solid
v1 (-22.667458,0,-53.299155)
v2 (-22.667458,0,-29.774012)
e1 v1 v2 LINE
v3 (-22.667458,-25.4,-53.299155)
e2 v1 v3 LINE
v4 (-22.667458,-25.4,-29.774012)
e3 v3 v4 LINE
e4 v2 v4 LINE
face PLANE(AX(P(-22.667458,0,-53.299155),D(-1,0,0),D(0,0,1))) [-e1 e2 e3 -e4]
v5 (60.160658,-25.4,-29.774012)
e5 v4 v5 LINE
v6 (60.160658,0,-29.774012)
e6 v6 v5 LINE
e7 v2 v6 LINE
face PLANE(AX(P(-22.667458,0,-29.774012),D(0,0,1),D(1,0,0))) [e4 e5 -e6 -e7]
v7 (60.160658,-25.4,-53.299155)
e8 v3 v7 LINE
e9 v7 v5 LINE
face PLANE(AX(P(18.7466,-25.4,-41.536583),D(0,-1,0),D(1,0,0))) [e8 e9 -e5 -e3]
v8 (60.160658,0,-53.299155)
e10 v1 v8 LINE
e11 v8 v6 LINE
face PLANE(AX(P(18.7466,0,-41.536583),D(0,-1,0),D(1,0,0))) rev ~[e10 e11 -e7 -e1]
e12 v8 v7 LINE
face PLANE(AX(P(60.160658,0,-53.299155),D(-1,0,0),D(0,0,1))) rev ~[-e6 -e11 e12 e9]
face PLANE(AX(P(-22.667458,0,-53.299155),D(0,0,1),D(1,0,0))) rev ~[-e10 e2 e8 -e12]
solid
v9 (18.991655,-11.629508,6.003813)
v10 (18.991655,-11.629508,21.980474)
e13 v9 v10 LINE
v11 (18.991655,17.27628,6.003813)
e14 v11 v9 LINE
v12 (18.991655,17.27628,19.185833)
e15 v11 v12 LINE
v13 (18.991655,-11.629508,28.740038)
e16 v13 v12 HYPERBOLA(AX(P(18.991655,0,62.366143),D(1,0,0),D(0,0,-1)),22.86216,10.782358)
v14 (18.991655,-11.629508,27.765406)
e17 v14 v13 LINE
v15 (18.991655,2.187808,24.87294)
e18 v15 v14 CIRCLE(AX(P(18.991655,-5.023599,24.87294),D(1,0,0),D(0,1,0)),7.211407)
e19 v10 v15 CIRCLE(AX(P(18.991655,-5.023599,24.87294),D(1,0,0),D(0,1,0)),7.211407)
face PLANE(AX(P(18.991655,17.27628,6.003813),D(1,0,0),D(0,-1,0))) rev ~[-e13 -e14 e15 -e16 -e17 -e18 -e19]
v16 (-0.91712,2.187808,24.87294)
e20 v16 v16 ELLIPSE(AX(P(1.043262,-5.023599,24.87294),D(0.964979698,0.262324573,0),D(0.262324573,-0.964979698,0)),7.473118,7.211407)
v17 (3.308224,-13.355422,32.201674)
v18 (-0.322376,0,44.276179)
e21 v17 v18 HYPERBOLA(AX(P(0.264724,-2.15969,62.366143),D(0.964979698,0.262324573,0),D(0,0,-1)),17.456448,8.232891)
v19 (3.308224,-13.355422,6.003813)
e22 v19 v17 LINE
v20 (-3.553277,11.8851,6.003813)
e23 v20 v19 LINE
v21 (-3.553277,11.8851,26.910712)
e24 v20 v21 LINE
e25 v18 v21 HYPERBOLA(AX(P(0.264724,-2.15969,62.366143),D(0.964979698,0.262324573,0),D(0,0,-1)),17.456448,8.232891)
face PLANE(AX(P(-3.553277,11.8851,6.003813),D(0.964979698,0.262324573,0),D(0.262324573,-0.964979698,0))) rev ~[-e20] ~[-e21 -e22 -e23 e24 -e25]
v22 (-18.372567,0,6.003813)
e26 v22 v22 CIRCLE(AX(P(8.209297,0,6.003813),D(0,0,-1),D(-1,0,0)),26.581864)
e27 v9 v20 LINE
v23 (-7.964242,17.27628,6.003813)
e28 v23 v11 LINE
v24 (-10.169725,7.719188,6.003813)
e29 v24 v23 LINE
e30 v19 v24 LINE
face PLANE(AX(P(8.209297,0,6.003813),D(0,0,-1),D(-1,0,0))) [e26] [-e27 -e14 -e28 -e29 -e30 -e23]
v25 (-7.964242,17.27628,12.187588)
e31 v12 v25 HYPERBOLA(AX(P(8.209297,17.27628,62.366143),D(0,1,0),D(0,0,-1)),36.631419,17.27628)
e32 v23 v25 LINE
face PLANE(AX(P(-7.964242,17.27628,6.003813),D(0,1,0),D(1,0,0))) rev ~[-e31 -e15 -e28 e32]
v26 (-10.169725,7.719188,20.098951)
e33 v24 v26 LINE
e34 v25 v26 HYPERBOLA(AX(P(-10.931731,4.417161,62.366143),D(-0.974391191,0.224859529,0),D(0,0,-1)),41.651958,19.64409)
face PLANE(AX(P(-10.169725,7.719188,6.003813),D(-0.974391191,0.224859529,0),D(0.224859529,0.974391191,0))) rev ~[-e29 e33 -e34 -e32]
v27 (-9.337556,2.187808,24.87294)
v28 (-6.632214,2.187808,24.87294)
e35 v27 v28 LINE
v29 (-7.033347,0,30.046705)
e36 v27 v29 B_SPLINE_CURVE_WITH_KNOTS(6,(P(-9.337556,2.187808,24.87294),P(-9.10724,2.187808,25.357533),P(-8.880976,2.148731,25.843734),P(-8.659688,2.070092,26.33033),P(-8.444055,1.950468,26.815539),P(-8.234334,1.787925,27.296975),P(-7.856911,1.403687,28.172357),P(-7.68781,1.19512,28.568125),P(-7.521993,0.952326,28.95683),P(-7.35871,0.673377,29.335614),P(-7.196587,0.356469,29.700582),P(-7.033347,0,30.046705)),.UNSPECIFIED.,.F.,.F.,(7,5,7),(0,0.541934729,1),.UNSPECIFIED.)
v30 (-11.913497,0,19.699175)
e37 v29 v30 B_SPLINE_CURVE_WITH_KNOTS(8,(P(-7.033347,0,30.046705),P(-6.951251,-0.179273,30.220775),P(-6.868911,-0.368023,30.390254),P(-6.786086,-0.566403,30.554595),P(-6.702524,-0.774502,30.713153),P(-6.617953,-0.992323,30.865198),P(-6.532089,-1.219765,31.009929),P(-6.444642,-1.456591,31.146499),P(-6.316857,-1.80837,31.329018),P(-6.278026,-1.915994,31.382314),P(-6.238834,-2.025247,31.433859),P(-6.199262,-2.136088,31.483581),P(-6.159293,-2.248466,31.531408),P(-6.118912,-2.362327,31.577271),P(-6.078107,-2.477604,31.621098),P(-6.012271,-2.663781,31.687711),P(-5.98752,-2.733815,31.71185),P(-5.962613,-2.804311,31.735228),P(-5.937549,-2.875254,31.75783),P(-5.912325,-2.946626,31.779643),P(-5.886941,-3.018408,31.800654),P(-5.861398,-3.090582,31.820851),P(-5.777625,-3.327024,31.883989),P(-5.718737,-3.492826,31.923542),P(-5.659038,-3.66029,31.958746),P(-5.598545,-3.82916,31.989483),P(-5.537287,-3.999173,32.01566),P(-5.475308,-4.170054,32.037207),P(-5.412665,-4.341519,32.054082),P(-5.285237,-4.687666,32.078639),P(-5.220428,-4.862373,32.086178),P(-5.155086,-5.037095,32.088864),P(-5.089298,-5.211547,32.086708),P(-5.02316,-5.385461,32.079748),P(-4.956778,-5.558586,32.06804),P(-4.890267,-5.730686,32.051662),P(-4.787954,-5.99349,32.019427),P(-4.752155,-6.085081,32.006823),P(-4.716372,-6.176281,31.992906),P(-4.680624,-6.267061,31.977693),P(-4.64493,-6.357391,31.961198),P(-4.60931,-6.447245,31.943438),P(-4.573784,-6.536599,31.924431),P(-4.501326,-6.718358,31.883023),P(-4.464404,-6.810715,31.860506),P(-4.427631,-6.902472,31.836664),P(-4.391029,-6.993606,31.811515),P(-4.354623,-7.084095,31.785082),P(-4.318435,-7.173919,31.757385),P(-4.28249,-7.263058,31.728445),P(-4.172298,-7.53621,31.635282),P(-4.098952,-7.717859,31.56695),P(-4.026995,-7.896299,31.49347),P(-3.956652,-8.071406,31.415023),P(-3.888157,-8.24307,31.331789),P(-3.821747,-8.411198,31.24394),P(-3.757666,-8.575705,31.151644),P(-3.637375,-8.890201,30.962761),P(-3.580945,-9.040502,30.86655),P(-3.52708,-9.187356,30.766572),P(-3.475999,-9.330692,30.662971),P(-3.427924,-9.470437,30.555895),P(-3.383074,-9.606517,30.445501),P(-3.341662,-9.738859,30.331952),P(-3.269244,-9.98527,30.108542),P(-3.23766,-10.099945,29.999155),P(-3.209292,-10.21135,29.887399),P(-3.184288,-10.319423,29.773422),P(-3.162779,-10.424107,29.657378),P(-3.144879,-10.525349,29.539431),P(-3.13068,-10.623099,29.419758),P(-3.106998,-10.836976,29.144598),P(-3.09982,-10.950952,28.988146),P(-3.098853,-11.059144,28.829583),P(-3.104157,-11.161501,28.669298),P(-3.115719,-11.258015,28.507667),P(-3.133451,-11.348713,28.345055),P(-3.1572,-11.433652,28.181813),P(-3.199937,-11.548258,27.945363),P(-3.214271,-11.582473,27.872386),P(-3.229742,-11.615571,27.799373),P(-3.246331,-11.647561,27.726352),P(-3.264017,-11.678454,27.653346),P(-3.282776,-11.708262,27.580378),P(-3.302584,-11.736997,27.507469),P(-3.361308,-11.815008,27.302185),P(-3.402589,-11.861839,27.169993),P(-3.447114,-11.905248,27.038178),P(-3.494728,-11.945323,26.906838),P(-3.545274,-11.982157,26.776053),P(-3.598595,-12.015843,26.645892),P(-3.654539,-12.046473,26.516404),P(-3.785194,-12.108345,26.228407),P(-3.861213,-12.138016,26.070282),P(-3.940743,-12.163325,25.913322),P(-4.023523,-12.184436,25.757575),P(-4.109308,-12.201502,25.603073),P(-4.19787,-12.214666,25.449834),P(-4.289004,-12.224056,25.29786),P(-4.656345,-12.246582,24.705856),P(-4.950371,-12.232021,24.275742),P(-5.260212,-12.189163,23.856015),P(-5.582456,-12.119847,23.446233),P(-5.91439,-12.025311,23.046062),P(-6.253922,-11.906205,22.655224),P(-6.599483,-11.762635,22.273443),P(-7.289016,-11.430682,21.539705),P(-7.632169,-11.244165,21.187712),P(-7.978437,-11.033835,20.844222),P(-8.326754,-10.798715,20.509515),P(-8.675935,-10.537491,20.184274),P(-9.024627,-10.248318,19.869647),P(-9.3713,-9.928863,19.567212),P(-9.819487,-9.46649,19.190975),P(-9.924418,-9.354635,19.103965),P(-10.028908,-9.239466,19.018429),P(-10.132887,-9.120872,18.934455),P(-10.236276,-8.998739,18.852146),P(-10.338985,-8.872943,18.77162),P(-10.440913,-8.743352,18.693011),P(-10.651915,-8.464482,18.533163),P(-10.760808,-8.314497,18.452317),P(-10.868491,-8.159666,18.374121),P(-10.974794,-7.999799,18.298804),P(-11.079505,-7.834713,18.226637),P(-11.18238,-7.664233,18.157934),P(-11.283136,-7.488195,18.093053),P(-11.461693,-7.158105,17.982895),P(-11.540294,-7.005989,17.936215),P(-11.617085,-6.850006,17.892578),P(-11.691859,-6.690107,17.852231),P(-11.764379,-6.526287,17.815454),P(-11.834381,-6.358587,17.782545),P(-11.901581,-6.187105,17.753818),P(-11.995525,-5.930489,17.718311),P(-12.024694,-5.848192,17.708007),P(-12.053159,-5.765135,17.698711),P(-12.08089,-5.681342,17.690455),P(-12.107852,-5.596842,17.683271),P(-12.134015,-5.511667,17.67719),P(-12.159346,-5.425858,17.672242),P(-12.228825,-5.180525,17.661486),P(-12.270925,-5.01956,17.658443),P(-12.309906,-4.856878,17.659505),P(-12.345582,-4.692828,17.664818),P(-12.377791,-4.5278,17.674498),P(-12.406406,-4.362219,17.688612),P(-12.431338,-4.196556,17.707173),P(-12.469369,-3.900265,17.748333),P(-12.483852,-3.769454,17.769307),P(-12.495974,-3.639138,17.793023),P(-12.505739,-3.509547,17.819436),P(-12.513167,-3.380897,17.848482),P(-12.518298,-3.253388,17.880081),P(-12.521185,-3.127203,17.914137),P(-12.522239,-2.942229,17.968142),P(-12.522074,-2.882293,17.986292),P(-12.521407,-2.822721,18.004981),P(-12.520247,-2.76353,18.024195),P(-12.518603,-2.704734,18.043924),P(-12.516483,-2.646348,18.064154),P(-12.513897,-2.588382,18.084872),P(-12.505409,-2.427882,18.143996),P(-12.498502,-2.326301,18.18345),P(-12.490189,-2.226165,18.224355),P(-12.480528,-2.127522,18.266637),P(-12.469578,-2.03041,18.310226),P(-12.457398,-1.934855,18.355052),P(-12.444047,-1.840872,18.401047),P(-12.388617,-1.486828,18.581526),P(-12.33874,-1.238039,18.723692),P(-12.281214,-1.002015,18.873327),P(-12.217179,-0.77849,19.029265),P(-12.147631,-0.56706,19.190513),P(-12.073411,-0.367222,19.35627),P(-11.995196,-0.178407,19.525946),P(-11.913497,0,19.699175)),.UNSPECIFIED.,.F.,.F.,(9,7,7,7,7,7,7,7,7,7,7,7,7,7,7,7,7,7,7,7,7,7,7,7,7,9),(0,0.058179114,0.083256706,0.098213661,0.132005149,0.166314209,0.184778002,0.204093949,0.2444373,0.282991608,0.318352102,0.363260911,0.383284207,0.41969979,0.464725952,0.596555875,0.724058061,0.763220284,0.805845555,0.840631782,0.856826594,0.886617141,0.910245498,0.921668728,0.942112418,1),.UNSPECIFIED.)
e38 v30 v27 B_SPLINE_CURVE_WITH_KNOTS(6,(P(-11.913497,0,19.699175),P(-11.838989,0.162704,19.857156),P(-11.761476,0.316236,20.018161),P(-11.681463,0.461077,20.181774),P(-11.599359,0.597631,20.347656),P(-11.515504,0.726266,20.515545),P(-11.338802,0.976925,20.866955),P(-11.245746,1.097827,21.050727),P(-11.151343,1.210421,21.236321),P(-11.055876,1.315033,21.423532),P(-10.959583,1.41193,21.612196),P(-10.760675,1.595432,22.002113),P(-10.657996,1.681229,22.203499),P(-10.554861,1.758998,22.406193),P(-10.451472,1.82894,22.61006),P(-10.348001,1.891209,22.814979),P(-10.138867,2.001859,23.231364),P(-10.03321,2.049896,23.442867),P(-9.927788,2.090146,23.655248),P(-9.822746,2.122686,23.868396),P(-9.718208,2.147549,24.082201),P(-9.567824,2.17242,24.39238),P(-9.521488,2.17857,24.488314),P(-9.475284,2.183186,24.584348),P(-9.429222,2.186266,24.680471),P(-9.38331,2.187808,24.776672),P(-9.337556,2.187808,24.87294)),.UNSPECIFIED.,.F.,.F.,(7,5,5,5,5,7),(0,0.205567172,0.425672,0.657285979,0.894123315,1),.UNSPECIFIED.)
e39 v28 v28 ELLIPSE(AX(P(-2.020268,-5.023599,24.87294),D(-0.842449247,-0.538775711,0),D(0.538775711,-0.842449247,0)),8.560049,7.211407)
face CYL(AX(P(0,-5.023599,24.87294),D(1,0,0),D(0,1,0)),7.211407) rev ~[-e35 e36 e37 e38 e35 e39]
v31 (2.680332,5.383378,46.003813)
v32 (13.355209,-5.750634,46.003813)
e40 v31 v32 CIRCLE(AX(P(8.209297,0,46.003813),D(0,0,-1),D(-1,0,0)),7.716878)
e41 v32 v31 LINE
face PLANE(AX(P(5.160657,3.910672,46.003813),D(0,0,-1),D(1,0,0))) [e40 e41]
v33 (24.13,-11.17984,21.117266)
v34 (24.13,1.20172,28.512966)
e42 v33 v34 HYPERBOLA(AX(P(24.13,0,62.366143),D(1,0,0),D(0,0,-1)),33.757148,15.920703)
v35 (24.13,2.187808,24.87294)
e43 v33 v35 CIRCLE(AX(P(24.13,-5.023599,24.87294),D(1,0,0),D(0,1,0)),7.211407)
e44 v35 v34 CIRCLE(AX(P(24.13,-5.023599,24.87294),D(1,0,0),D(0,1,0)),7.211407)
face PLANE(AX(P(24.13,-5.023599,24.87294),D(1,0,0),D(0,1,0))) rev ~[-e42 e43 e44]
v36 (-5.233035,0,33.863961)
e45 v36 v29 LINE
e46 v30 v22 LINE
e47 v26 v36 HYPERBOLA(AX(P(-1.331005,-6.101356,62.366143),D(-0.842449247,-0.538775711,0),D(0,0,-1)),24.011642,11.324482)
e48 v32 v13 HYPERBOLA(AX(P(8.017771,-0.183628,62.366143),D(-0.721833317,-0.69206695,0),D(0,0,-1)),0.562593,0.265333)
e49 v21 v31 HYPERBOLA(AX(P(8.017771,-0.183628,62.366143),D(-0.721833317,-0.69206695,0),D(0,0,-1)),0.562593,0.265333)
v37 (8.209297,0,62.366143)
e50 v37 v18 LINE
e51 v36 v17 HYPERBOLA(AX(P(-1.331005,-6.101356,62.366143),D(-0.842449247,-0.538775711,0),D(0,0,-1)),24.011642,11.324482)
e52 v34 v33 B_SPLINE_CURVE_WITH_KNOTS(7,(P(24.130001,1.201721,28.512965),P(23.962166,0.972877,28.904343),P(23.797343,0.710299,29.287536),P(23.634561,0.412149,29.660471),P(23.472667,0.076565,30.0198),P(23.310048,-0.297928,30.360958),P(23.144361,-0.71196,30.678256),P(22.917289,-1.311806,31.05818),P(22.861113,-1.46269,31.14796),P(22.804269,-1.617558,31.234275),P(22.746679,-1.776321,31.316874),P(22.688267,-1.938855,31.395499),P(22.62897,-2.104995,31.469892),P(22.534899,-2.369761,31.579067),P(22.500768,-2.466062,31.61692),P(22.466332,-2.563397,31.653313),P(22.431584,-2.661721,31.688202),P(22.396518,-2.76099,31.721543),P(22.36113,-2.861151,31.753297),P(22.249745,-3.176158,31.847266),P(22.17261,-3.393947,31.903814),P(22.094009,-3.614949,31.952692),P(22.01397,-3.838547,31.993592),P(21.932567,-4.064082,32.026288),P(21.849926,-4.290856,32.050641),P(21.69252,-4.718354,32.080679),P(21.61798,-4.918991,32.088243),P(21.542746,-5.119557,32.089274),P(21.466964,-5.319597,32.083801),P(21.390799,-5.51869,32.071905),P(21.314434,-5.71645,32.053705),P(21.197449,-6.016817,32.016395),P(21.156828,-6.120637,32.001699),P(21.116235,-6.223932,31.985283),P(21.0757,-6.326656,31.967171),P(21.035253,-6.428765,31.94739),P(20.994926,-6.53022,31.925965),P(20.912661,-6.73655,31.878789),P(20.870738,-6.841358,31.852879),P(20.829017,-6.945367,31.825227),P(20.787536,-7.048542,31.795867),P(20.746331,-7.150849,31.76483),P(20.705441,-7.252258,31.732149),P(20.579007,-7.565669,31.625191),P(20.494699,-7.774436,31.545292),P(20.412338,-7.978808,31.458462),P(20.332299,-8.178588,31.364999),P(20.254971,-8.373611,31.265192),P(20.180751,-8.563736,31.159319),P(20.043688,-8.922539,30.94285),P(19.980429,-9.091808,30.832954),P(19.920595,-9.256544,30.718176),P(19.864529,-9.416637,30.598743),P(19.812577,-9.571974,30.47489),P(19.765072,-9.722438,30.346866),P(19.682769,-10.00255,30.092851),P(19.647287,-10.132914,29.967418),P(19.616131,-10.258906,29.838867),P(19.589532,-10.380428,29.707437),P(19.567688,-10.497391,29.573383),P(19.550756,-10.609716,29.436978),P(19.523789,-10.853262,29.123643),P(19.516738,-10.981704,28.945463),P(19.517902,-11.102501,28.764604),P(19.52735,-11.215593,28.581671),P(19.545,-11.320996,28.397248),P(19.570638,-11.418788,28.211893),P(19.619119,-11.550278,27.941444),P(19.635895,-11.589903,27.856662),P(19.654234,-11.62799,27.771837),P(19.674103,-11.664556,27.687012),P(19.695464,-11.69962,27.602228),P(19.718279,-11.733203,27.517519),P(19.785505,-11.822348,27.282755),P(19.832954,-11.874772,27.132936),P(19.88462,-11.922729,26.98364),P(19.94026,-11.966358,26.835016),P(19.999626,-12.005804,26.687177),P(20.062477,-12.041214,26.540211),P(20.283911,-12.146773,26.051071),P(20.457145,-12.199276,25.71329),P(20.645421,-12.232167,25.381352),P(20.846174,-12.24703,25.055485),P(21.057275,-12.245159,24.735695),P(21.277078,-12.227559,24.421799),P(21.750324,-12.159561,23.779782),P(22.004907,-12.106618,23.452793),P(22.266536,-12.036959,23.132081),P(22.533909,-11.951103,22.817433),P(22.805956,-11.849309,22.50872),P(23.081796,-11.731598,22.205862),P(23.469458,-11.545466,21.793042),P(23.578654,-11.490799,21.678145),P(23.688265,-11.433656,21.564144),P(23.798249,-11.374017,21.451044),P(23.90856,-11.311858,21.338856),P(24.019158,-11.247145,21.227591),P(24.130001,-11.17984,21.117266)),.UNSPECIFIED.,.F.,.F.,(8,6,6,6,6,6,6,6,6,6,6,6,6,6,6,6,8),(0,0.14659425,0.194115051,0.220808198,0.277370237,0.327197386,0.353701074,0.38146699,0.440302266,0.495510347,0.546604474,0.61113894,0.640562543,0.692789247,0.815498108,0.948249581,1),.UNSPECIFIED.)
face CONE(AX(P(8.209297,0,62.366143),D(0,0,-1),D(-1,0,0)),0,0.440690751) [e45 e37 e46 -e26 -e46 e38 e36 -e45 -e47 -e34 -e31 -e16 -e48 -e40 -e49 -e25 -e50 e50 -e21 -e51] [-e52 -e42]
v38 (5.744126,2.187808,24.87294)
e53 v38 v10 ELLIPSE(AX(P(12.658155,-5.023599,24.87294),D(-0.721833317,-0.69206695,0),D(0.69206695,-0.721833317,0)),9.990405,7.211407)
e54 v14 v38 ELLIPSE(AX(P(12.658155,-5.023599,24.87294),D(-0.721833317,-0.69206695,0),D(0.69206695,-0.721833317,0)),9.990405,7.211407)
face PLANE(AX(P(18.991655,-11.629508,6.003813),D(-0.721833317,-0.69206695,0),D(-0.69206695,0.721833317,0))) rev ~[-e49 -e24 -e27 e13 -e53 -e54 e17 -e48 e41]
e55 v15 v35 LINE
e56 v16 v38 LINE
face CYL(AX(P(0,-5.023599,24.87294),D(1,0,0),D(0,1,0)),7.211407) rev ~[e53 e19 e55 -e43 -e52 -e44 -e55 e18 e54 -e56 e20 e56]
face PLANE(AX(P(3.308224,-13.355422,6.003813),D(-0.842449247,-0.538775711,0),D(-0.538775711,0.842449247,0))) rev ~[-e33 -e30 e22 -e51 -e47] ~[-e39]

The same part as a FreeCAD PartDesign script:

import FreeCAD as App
import Part
import Sketcher


def add_polygon(sketch, points):
    """Adds a closed chain of lines whose ends are joined by coincident constraints."""
    first, n = sketch.GeometryCount, len(points)
    for a, b in zip(points, points[1:] + points[:1]):
        sketch.addGeometry(Part.LineSegment(App.Vector(*a, 0), App.Vector(*b, 0)), False)
    for i in range(n):
        sketch.addConstraint(Sketcher.Constraint("Coincident", first + i, 2, first + (i + 1) % n, 1))

doc = App.newDocument("Part")
params = doc.addObject("Spreadsheet::Sheet", "Params")
for row, (alias, value) in enumerate([
    ("revolution_angle", "360 deg"),
    ("pocket1_length", "1.9 in"),
    ("pocket2_length", "40 mm"),
    ("pad1_length", "1 in"),
], start=1):
    params.set(f"A{row}", alias)
    params.set(f"B{row}", "=" + value)
    params.setAlias(f"B{row}", alias)

body = doc.addObject("PartDesign::Body", "Body")

# Sketch on XZ plane
sketch1 = doc.addObject("Sketcher::SketchObject", "Sketch")
body.addObject(sketch1)
sketch1.AttachmentSupport = (doc.XZ_Plane, [""])
sketch1.MapMode = "FlatFace"
add_polygon(sketch1, [(8.209297, 6.003813), (8.209297, 62.366143), (-18.372567, 6.003813)])  # lines 0-2
sketch1.addGeometry(Part.LineSegment(App.Vector(8.209297, 62.366143, 0), App.Vector(8.209297, 6.003813, 0)), True)  # axis
sketch1.addConstraint(Sketcher.Constraint("Vertical", 0))
sketch1.addConstraint(Sketcher.Constraint("Horizontal", 2))
sketch1.addConstraint(Sketcher.Constraint("Vertical", 3))
sketch1.addConstraint(Sketcher.Constraint("Coincident", 3, 1, 0, 2))
sketch1.addConstraint(Sketcher.Constraint("Horizontal", 1, 2, 3, 2))
sketch1.addConstraint(Sketcher.Constraint("DistanceY", 0, 1, 0, 2, 56.36233))
sketch1.addConstraint(Sketcher.Constraint("Distance", 1, 62.316192))
sketch1.addConstraint(Sketcher.Constraint("DistanceX", -1, 1, 0, 2, 8.209297))
sketch1.addConstraint(Sketcher.Constraint("DistanceY", -1, 1, 0, 2, 62.366143))
revolution = doc.addObject("PartDesign::Revolution", "Revolution")
body.addObject(revolution)
revolution.Profile = sketch1
revolution.ReferenceAxis = (sketch1, ["Axis0"])
revolution.setExpression("Angle", "Params.revolution_angle")

# Sketch on YZ plane
sketch2 = doc.addObject("Sketcher::SketchObject", "Sketch001")
body.addObject(sketch2)
sketch2.AttachmentSupport = (doc.YZ_Plane, [""])
sketch2.MapMode = "FlatFace"
sketch2.addGeometry(Part.Circle(App.Vector(-5.023599, 24.87294, 0), App.Vector(0, 0, 1), 7.211407), False)
sketch2.addConstraint(Sketcher.Constraint("Diameter", 0, 14.422814))
sketch2.addConstraint(Sketcher.Constraint("DistanceX", 0, 3, -1, 1, 5.023599))
sketch2.addConstraint(Sketcher.Constraint("DistanceY", -1, 1, 0, 3, 24.87294))
pocket1 = doc.addObject("PartDesign::Pocket", "Pocket")
body.addObject(pocket1)
pocket1.Profile = sketch2
pocket1.setExpression("Length", "Params.pocket1_length")
pocket1.Midplane = True

# Sketch on XY plane
sketch3 = doc.addObject("Sketcher::SketchObject", "Sketch002")
body.addObject(sketch3)
sketch3.AttachmentSupport = (doc.XY_Plane, [""])
sketch3.MapMode = "FlatFace"
sketch3.AttachmentOffset = App.Placement(App.Vector(0, 0, 6.003813), App.Rotation())
add_polygon(sketch3, [(-7.964242, 17.27628), (18.991655, 17.27628), (18.991655, -11.629508), (-3.553277, 11.8851), (3.308224, -13.355422), (-10.169725, 7.719188)])  # lines 0-5
sketch3.addConstraint(Sketcher.Constraint("Horizontal", 0))
sketch3.addConstraint(Sketcher.Constraint("Vertical", 1))
sketch3.addConstraint(Sketcher.Constraint("DistanceY", 1, 2, 1, 1, 28.905788))
sketch3.addConstraint(Sketcher.Constraint("DistanceY", -1, 1, 2, 2, 11.8851))
sketch3.addConstraint(Sketcher.Constraint("DistanceX", 2, 2, 3, 2, 6.861501))
sketch3.addConstraint(Sketcher.Constraint("Distance", 2, 32.57623))
sketch3.addConstraint(Sketcher.Constraint("Distance", 3, 26.156532))
sketch3.addConstraint(Sketcher.Constraint("Distance", 4, 25.015881))
sketch3.addConstraint(Sketcher.Constraint("Distance", 5, 9.80827))
sketch3.addConstraint(Sketcher.Constraint("DistanceX", 0, 1, 0, 2, 26.955897))
sketch3.addConstraint(Sketcher.Constraint("DistanceY", -1, 1, 0, 2, 17.27628))
sketch3.addConstraint(Sketcher.Constraint("DistanceX", 5, 2, -1, 1, 7.964242))
pocket2 = doc.addObject("PartDesign::Pocket", "Pocket001")
body.addObject(pocket2)
pocket2.Profile = sketch3
pocket2.setExpression("Length", "Params.pocket2_length")
pocket2.Reversed = True
body2 = doc.addObject("PartDesign::Body", "Body001")

# Sketch on XZ plane
sketch4 = doc.addObject("Sketcher::SketchObject", "Sketch003")
body2.addObject(sketch4)
sketch4.AttachmentSupport = (doc.getObject("XZ_Plane001"), [""])
sketch4.MapMode = "FlatFace"
add_polygon(sketch4, [(-22.667458, -29.774012), (-22.667458, -53.299155), (60.160658, -53.299155), (60.160658, -29.774012)])  # lines 0-3
sketch4.addConstraint(Sketcher.Constraint("Vertical", 0))
sketch4.addConstraint(Sketcher.Constraint("Horizontal", 1))
sketch4.addConstraint(Sketcher.Constraint("Vertical", 2))
sketch4.addConstraint(Sketcher.Constraint("Horizontal", 3))
sketch4.addConstraint(Sketcher.Constraint("DistanceX", 1, 1, 1, 2, 82.828117))
sketch4.addConstraint(Sketcher.Constraint("DistanceY", 0, 2, 0, 1, 23.525143))
sketch4.addConstraint(Sketcher.Constraint("DistanceX", 0, 2, -1, 1, 22.667458))
sketch4.addConstraint(Sketcher.Constraint("DistanceY", 2, 2, -1, 1, 29.774012))
pad1 = doc.addObject("PartDesign::Pad", "Pad")
body2.addObject(pad1)
pad1.Profile = sketch4
pad1.setExpression("Length", "Params.pad1_length")

doc.recompute()
